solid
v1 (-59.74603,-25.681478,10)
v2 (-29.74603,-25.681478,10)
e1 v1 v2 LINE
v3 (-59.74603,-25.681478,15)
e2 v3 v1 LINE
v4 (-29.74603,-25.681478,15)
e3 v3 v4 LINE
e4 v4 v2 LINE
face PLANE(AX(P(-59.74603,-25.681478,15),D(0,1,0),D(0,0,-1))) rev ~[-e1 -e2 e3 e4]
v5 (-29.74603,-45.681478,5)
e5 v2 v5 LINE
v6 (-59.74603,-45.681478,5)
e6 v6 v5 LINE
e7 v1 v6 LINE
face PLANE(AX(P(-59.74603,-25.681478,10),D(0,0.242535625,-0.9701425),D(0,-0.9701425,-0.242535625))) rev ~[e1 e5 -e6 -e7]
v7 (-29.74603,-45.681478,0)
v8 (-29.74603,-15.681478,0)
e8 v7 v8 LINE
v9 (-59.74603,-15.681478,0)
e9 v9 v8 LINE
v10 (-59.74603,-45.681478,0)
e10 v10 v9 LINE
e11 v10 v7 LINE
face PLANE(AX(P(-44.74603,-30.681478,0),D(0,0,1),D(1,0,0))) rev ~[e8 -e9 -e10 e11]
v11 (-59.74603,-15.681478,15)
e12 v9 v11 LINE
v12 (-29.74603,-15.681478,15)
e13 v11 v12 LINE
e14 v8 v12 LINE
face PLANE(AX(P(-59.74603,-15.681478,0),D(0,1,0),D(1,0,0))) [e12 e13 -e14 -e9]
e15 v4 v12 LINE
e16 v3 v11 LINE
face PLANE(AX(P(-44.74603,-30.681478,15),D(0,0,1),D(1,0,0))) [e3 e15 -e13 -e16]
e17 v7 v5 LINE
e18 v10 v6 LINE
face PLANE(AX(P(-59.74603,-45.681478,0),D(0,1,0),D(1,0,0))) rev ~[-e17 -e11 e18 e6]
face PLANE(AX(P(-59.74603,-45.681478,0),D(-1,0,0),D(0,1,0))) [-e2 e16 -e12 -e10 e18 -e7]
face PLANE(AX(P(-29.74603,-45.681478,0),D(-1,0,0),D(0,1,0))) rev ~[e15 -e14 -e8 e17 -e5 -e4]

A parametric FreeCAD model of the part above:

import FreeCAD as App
import Part
import Sketcher

V = App.Vector
Q = App.Units.Quantity

doc = App.newDocument("Part")
body = doc.addObject("PartDesign::Body", "Body")

# Sketch on XY plane
sketch1 = body.newObject("Sketcher::SketchObject", "Sketch")
sketch1.AttachmentSupport = (doc.getObject("XY_Plane"), [""])
sketch1.MapMode = "FlatFace"
sketch1.addGeometry(Part.LineSegment(V(-59.74603, -15.681478, 0), V(-59.74603, -45.681478, 0)), False)
sketch1.addGeometry(Part.LineSegment(V(-59.74603, -45.681478, 0), V(-29.74603, -45.681478, 0)), False)
sketch1.addGeometry(Part.LineSegment(V(-29.74603, -45.681478, 0), V(-29.74603, -15.681478, 0)), False)
sketch1.addGeometry(Part.LineSegment(V(-29.74603, -15.681478, 0), V(-59.74603, -15.681478, 0)), False)
sketch1.addConstraint(Sketcher.Constraint("Coincident", 0, 2, 1, 1))
sketch1.addConstraint(Sketcher.Constraint("Coincident", 1, 2, 2, 1))
sketch1.addConstraint(Sketcher.Constraint("Coincident", 2, 2, 3, 1))
sketch1.addConstraint(Sketcher.Constraint("Coincident", 3, 2, 0, 1))
sketch1.addConstraint(Sketcher.Constraint("Vertical", 0))
sketch1.addConstraint(Sketcher.Constraint("Horizontal", 1))
sketch1.addConstraint(Sketcher.Constraint("Vertical", 2))
sketch1.addConstraint(Sketcher.Constraint("Horizontal", 3))
sketch1.addConstraint(Sketcher.Constraint("Equal", 3, 0))
sketch1.addConstraint(Sketcher.Constraint("DistanceX", 1, 1, 1, 2, Q("30 mm")))
sketch1.addConstraint(Sketcher.Constraint("DistanceX", 0, 2, -1, 1, Q("59.74603 mm")))
sketch1.addConstraint(Sketcher.Constraint("DistanceY", 0, 2, -1, 1, Q("45.681478 mm")))
pad1 = body.newObject("PartDesign::Pad", "Pad")
pad1.Profile = sketch1
pad1.Length = 15

# Sketch on YZ plane
sketch2 = body.newObject("Sketcher::SketchObject", "Sketch001")
sketch2.AttachmentSupport = (doc.getObject("YZ_Plane"), [""])
sketch2.MapMode = "FlatFace"
sketch2.AttachmentOffset = App.Placement(V(0, 0, -59.74603), App.Rotation())
sketch2.addGeometry(Part.LineSegment(V(-45.681478, 15, 0), V(-25.681478, 15, 0)), False)
sketch2.addGeometry(Part.LineSegment(V(-25.681478, 15, 0), V(-25.681478, 10, 0)), False)
sketch2.addGeometry(Part.LineSegment(V(-25.681478, 10, 0), V(-45.681478, 5, 0)), False)
sketch2.addGeometry(Part.LineSegment(V(-45.681478, 5, 0), V(-45.681478, 15, 0)), False)
sketch2.addConstraint(Sketcher.Constraint("Coincident", 0, 2, 1, 1))
sketch2.addConstraint(Sketcher.Constraint("Coincident", 1, 2, 2, 1))
sketch2.addConstraint(Sketcher.Constraint("Coincident", 2, 2, 3, 1))
sketch2.addConstraint(Sketcher.Constraint("Coincident", 3, 2, 0, 1))
sketch2.addConstraint(Sketcher.Constraint("Horizontal", 0))
sketch2.addConstraint(Sketcher.Constraint("Vertical", 1))
sketch2.addConstraint(Sketcher.Constraint("Vertical", 3))
sketch2.addConstraint(Sketcher.Constraint("DistanceX", 0, 1, 0, 2, Q("20 mm")))
sketch2.addConstraint(Sketcher.Constraint("DistanceY", 1, 2, 1, 1, Q("5 mm")))
sketch2.addConstraint(Sketcher.Constraint("DistanceY", 3, 1, 3, 2, Q("10 mm")))
sketch2.addConstraint(Sketcher.Constraint("DistanceY", -1, 1, 0, 2, Q("15 mm")))
sketch2.addConstraint(Sketcher.Constraint("DistanceX", 0, 2, -1, 1, Q("25.681478 mm")))
pocket1 = body.newObject("PartDesign::Pocket", "Pocket")
pocket1.Profile = sketch2
pocket1.Type = "ThroughAll"
pocket1.Reversed = True

doc.recompute()
